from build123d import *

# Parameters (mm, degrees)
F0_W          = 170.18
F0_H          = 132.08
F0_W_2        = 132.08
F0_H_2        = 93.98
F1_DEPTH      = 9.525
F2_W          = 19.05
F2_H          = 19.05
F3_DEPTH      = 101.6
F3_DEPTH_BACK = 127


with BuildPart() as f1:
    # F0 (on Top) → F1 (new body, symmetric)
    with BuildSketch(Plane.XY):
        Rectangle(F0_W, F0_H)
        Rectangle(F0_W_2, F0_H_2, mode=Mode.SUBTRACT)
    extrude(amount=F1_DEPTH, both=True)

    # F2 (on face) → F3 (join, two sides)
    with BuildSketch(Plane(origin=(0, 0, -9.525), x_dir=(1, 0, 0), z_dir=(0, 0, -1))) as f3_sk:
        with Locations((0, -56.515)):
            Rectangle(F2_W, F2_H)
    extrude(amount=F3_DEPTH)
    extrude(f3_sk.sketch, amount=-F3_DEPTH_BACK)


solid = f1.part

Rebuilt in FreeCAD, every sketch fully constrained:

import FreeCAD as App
import Part
import Sketcher

V = App.Vector
Q = App.Units.Quantity


def add_polygon(sketch, points):
    """Adds a closed chain of lines whose ends are joined by coincident constraints."""
    first, n = sketch.GeometryCount, len(points)
    for a, b in zip(points, points[1:] + points[:1]):
        sketch.addGeometry(Part.LineSegment(App.Vector(*a, 0), App.Vector(*b, 0)), False)
    for i in range(n):
        sketch.addConstraint(Sketcher.Constraint("Coincident", first + i, 2, first + (i + 1) % n, 1))

doc = App.newDocument("Part")
body = doc.addObject("PartDesign::Body", "Body")

# Sketch on XY plane
sketch1 = body.newObject("Sketcher::SketchObject", "Sketch")
sketch1.AttachmentSupport = (doc.getObject("XY_Plane"), [""])
sketch1.MapMode = "FlatFace"
add_polygon(sketch1, [(-85, 66), (-85, -66), (85, -66), (85, 66)])  # lines 0-3
add_polygon(sketch1, [(66, -47), (-66, -47), (-66, 47), (66, 47)])  # lines 4-7
sketch1.addConstraint(Sketcher.Constraint("Vertical", 0))
sketch1.addConstraint(Sketcher.Constraint("Horizontal", 1))
sketch1.addConstraint(Sketcher.Constraint("Vertical", 2))
sketch1.addConstraint(Sketcher.Constraint("Horizontal", 3))
sketch1.addConstraint(Sketcher.Constraint("Horizontal", 4))
sketch1.addConstraint(Sketcher.Constraint("Vertical", 5))
sketch1.addConstraint(Sketcher.Constraint("Horizontal", 6))
sketch1.addConstraint(Sketcher.Constraint("Vertical", 7))
sketch1.addConstraint(Sketcher.Constraint("Symmetric", 0, 2, 2, 2, -1, 1))
sketch1.addConstraint(Sketcher.Constraint("Symmetric", 4, 2, 6, 2, -1, 1))
sketch1.addConstraint(Sketcher.Constraint("Equal", 6, 0))
sketch1.addConstraint(Sketcher.Constraint("DistanceX", 1, 1, 1, 2, Q("6.7 in")))
sketch1.addConstraint(Sketcher.Constraint("DistanceX", 4, 2, 4, 1, Q("5.2 in")))
sketch1.addConstraint(Sketcher.Constraint("DistanceY", 5, 1, 5, 2, Q("3.7 in")))
pad1 = body.newObject("PartDesign::Pad", "Pad")
pad1.Profile = sketch1
pad1.Length = Q("0.75 in")
pad1.Midplane = True

# Sketch on XY plane
sketch2 = body.newObject("Sketcher::SketchObject", "Sketch001")
sketch2.AttachmentSupport = (doc.getObject("XY_Plane"), [""])
sketch2.MapMode = "FlatFace"
sketch2.AttachmentOffset = App.Placement(V(0, 0, -0.375 * 25.4), App.Rotation())
add_polygon(sketch2, [(-10, 47), (-10, 66), (10, 66), (10, 47)])  # lines 0-3
sketch2.addConstraint(Sketcher.Constraint("Vertical", 0))
sketch2.addConstraint(Sketcher.Constraint("Horizontal", 1))
sketch2.addConstraint(Sketcher.Constraint("Vertical", 2))
sketch2.addConstraint(Sketcher.Constraint("Horizontal", 3))
sketch2.addConstraint(Sketcher.Constraint("Equal", 3, 0))
sketch2.addConstraint(Sketcher.Constraint("DistanceX", 1, 1, 1, 2, Q("0.75 in")))
sketch2.addConstraint(Sketcher.Constraint("DistanceY", -1, 1, 0, 2, Q("2.6 in")))
sketch2.addConstraint(Sketcher.Constraint("DistanceX", 0, 2, -1, 1, Q("0.375 in")))
pad2 = body.newObject("PartDesign::Pad", "Pad001")
pad2.Profile = sketch2
pad2.Type = "TwoLengths"
pad2.Length = Q("4 in")
pad2.Length2 = Q("5 in")
pad2.Reversed = True

doc.recompute()
